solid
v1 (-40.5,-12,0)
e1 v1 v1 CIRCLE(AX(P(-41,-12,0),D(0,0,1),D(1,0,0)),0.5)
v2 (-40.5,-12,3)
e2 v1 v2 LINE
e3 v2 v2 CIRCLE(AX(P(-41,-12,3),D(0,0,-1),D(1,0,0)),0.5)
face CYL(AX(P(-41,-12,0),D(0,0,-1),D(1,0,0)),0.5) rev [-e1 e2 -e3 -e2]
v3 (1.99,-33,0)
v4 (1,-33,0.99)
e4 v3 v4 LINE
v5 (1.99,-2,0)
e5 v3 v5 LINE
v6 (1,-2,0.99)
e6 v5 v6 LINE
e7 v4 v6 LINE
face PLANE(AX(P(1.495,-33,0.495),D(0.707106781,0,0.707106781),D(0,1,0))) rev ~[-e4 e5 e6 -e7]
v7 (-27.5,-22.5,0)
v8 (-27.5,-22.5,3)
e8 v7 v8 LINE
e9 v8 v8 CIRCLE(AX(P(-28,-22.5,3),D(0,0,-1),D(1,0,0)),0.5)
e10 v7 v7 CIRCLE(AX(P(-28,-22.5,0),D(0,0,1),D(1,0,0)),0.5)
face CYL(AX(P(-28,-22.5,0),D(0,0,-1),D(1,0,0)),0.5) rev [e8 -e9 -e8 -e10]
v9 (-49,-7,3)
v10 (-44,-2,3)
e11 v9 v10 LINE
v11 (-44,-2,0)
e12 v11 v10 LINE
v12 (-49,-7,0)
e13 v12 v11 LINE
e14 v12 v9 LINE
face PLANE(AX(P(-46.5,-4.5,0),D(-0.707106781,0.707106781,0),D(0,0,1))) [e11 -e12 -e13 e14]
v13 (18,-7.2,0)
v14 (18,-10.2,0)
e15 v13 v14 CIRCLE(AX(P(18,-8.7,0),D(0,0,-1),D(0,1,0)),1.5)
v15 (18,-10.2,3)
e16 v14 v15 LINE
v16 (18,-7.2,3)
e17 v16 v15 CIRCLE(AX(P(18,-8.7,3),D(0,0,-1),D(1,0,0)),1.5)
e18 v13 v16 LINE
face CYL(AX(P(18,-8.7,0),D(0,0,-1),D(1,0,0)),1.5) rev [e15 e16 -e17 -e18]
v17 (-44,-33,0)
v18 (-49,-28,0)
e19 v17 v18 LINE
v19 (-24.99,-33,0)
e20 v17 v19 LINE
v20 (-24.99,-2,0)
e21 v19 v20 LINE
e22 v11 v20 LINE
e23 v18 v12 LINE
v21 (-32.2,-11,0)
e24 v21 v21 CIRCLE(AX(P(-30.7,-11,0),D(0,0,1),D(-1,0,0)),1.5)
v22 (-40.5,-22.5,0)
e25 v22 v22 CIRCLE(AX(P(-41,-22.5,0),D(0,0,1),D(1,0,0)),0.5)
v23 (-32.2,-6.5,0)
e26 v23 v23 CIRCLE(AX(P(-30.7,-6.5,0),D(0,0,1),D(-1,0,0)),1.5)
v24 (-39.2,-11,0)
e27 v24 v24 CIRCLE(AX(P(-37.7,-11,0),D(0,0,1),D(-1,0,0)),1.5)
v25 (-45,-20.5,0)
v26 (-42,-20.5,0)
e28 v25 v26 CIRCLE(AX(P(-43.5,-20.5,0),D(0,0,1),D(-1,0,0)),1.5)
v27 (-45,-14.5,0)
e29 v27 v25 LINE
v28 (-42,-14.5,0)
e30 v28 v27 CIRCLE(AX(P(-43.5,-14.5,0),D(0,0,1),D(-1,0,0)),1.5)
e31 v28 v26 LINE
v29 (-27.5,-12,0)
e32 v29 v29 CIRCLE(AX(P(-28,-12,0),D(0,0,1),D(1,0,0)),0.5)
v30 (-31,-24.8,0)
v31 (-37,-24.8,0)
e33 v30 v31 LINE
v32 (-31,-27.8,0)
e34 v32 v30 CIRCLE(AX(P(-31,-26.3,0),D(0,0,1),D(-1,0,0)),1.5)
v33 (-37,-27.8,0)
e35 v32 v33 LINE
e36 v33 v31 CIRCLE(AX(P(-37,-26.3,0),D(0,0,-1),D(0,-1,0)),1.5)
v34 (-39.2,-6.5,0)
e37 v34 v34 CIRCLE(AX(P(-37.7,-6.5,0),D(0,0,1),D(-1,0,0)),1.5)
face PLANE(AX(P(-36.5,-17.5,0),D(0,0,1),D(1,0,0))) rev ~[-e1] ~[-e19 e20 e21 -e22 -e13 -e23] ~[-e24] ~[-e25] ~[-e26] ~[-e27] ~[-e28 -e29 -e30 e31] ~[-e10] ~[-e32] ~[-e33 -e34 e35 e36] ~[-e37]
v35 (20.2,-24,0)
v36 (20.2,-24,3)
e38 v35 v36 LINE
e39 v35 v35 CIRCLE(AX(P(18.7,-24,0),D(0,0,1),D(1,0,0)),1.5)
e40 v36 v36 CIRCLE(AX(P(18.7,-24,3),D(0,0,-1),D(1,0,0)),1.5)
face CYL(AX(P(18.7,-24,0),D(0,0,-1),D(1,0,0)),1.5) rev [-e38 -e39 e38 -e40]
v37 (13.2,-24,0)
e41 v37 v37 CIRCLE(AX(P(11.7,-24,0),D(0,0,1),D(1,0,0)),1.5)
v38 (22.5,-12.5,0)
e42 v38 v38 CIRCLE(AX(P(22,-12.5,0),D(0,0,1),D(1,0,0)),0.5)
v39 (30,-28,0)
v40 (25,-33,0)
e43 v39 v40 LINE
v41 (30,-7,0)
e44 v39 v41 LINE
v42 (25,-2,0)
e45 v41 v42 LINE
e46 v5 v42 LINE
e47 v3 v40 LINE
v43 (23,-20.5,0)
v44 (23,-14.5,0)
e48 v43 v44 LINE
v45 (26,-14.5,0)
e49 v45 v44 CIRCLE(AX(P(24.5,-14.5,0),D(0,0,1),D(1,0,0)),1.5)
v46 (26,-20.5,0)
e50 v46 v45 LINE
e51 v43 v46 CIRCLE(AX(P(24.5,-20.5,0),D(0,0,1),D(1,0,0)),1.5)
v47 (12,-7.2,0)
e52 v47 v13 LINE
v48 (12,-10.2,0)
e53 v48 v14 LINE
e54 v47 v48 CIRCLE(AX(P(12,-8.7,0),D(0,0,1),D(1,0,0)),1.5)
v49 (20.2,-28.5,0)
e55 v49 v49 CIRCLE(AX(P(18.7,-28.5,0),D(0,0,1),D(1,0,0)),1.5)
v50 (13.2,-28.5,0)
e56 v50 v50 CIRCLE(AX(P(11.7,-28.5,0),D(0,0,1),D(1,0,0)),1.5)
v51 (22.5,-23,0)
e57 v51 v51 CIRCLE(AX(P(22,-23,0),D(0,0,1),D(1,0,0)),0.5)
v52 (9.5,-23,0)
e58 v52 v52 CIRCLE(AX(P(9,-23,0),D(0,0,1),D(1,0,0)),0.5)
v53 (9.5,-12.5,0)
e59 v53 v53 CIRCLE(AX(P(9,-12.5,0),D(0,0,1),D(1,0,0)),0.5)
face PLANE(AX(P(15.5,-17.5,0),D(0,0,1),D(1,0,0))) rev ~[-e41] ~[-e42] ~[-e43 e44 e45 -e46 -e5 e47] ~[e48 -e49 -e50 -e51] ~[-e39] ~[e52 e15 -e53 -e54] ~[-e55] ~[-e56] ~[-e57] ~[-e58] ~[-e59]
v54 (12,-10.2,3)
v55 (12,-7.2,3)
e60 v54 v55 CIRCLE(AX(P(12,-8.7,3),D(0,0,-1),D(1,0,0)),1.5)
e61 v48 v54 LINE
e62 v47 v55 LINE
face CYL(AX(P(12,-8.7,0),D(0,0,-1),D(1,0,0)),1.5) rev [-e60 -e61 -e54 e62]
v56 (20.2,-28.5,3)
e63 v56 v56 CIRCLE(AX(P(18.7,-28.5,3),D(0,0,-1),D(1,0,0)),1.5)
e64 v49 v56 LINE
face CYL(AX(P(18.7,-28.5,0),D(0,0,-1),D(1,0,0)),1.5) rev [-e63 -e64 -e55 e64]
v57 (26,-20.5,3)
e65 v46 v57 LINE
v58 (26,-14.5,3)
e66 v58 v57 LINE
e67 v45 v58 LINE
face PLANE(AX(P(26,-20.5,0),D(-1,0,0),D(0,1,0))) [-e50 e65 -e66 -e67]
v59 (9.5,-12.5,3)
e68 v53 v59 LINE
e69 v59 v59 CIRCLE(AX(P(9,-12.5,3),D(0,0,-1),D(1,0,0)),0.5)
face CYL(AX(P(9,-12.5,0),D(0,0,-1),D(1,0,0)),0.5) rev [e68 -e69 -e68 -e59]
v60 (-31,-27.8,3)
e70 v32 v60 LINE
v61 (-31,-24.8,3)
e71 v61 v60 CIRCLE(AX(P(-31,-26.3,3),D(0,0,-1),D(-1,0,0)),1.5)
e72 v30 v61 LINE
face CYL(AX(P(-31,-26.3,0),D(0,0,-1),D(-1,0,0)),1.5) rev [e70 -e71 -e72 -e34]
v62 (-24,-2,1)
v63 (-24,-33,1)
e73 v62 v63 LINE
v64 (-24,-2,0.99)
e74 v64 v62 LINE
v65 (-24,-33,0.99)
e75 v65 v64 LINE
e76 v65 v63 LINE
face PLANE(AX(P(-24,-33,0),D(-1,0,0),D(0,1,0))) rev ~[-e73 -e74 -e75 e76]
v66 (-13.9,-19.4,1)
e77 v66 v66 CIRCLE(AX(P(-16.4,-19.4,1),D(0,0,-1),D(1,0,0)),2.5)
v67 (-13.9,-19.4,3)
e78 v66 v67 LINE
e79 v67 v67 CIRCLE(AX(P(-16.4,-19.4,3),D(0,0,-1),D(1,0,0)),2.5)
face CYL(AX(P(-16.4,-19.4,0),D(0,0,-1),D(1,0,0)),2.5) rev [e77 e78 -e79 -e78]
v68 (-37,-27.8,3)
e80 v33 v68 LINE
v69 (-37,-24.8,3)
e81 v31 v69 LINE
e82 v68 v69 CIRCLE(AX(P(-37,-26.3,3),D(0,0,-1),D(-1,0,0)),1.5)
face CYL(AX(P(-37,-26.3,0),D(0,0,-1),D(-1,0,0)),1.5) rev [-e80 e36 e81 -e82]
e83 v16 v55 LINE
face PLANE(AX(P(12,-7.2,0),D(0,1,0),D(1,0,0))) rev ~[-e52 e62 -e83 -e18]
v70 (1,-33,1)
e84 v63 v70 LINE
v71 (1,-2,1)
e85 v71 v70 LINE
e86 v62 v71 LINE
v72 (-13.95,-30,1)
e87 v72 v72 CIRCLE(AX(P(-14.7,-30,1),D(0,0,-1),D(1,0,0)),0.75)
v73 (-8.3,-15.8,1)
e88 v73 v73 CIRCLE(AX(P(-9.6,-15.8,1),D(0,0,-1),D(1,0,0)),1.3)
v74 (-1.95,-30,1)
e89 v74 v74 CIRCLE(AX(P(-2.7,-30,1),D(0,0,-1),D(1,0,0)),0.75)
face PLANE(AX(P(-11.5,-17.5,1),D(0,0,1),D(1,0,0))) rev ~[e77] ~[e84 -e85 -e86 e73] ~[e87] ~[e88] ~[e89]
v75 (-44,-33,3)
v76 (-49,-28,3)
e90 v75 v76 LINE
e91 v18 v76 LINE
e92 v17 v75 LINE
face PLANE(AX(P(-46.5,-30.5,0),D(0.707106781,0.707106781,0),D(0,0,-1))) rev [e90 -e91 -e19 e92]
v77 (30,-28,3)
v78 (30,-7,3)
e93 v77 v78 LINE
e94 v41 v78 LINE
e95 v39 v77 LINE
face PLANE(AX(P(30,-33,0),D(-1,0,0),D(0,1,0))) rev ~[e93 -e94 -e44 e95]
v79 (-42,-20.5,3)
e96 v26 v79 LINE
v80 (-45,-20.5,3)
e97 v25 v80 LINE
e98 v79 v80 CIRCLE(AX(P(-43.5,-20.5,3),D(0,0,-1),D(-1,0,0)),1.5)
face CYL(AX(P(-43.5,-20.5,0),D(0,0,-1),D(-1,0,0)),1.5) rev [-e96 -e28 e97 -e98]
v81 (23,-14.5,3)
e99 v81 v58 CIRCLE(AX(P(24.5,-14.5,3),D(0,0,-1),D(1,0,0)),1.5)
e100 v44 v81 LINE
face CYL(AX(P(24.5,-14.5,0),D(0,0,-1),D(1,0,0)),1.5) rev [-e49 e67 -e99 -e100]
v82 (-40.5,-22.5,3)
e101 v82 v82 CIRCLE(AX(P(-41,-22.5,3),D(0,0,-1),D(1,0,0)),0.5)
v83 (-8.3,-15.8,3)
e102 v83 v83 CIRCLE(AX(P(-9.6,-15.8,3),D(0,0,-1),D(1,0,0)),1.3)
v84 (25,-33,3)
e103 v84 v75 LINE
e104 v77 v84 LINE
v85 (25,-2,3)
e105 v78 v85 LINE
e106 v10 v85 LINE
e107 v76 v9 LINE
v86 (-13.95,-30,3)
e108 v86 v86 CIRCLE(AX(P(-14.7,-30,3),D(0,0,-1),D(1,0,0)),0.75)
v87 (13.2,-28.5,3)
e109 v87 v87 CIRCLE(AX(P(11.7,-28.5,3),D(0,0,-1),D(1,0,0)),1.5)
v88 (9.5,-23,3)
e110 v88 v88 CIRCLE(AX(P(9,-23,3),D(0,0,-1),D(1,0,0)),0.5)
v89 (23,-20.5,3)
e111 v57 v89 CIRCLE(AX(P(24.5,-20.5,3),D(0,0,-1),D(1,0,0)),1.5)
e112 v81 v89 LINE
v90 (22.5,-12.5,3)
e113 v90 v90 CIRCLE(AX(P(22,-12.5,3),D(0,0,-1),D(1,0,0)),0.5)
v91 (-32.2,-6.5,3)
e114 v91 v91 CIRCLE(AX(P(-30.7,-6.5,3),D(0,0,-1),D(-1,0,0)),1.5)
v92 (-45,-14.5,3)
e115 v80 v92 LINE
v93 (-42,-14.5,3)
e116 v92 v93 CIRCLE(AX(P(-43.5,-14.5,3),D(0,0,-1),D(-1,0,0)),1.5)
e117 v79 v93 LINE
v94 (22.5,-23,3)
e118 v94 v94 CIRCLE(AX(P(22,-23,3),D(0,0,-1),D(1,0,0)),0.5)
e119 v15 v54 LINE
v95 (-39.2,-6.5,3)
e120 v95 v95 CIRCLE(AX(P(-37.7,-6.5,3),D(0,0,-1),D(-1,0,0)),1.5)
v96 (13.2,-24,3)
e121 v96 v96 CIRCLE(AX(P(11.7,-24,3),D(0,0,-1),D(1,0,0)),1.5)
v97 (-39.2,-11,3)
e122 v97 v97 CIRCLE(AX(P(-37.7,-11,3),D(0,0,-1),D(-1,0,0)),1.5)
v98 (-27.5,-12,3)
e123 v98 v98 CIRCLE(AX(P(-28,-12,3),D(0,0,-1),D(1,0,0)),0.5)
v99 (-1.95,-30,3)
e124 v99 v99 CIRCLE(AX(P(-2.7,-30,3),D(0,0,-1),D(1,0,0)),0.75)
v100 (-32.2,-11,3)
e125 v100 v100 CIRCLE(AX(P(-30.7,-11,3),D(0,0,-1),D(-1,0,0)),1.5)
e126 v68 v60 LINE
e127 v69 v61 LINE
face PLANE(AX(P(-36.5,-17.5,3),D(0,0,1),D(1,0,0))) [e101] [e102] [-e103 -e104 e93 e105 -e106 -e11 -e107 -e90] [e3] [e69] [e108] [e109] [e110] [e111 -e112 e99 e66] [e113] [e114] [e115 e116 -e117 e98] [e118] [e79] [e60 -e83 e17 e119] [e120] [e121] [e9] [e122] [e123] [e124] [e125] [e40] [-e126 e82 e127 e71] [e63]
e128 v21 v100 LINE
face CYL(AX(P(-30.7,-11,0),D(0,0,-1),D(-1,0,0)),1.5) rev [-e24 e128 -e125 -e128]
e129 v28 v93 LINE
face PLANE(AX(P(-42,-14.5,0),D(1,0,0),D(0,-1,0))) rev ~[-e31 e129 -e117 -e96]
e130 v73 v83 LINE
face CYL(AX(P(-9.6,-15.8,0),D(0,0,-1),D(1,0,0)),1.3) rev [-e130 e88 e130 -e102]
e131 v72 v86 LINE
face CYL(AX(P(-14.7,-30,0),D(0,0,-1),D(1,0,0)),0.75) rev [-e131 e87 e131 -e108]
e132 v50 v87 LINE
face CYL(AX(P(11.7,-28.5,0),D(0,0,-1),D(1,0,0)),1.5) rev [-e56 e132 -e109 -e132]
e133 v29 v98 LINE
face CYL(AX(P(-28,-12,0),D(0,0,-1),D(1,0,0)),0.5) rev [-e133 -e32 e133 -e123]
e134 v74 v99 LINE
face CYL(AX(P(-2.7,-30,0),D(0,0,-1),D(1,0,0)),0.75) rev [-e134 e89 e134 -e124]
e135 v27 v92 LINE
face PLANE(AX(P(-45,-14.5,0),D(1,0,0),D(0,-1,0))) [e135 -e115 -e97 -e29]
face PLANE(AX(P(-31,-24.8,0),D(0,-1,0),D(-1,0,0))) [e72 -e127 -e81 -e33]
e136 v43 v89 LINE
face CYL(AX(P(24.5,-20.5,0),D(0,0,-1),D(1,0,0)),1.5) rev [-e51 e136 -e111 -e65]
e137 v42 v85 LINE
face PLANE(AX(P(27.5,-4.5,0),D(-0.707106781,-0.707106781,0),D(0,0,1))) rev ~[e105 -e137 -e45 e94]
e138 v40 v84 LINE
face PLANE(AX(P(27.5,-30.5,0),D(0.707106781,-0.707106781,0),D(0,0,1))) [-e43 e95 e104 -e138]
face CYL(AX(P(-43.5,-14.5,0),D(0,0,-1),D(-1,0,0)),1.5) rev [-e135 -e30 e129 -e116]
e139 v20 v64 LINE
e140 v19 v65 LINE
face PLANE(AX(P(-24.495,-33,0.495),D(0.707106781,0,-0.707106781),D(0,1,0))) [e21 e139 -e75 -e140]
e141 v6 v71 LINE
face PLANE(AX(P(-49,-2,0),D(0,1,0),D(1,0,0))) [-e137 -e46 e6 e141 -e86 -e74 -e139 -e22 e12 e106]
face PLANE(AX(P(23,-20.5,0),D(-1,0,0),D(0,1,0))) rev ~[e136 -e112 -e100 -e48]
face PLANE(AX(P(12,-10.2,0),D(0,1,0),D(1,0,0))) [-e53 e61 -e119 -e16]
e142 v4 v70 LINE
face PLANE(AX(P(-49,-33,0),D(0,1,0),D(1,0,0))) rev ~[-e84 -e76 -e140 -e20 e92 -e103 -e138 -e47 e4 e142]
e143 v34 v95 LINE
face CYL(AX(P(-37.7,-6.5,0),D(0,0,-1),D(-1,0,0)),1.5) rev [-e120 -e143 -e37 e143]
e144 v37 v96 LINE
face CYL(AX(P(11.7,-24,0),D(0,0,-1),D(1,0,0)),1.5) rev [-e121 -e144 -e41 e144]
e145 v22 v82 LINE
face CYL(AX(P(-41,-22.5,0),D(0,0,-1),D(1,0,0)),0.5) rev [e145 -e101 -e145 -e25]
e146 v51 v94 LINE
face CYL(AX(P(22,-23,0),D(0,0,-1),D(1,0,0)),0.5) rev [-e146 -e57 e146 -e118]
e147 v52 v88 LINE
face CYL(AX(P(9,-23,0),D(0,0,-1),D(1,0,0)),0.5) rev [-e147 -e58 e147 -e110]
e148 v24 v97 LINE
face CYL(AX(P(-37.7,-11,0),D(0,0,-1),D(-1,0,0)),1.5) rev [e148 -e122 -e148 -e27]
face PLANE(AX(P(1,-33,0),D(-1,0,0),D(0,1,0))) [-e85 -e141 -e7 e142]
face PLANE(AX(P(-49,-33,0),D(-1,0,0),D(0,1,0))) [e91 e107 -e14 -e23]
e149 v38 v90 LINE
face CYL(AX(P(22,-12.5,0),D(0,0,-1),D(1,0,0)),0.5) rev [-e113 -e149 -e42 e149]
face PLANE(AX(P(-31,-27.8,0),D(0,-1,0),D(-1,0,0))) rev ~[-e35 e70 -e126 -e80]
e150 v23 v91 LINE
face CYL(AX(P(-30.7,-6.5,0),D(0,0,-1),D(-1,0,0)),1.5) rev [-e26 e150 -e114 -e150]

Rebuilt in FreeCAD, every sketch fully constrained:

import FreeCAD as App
import Part
import Sketcher
Q = App.Units.Quantity


def edges_at(feature, points):
    """Names of the edges that pass closest to the given points."""
    edges = feature.Shape.Edges
    near = lambda p: min(range(len(edges)), key=lambda i: edges[i].distToShape(Part.Vertex(*p))[0])
    return sorted({f"Edge{near(p) + 1}" for p in points})


def add_polygon(sketch, points):
    """Adds a closed chain of lines whose ends are joined by coincident constraints."""
    first, n = sketch.GeometryCount, len(points)
    for a, b in zip(points, points[1:] + points[:1]):
        sketch.addGeometry(Part.LineSegment(App.Vector(*a, 0), App.Vector(*b, 0)), False)
    for i in range(n):
        sketch.addConstraint(Sketcher.Constraint("Coincident", first + i, 2, first + (i + 1) % n, 1))

doc = App.newDocument("Part")
params = doc.addObject("Spreadsheet::Sheet", "Params")
for row, (alias, value) in enumerate([
    ("sketch1_diameter", "1 mm"),
    ("pad1_length", "10 mm"),
    ("sketch2_diameter", "1 mm"),
    ("pad2_length", "10 mm"),
    ("sketch3_diameter", "1 mm"),
    ("pad3_length", "10 mm"),
    ("sketch4_diameter", "1 mm"),
    ("pad4_length", "10 mm"),
    ("sketch5_diameter", "3 mm"),
    ("pad5_length", "10 mm"),
    ("sketch6_diameter", "3 mm"),
    ("pad6_length", "10 mm"),
    ("sketch7_diameter", "3 mm"),
    ("pad7_length", "10 mm"),
    ("sketch8_diameter", "3 mm"),
    ("pad8_length", "10 mm"),
    ("sketch9_width", "3 mm"),
    ("sketch9_height", "6 mm"),
    ("pad9_length", "10 mm"),
    ("sketch10_diameter", "3 mm"),
    ("pad10_length", "10 mm"),
    ("sketch11_diameter", "3 mm"),
    ("pad11_length", "10 mm"),
    ("sketch12_diameter", "3 mm"),
    ("pad12_length", "10 mm"),
    ("sketch13_width", "6 mm"),
    ("sketch13_height", "3 mm"),
    ("pad13_length", "10 mm"),
    ("sketch14_diameter", "3 mm"),
    ("pad14_length", "10 mm"),
    ("sketch15_width", "29 mm"),
    ("sketch15_height", "31 mm"),
    ("pad15_length", "3 mm"),
    ("sketch16_diameter", "1 mm"),
    ("pad16_length", "10 mm"),
    ("sketch17_diameter", "1 mm"),
    ("pad17_length", "10 mm"),
    ("sketch18_diameter", "1 mm"),
    ("pad18_length", "10 mm"),
    ("sketch19_diameter", "1 mm"),
    ("pad19_length", "10 mm"),
    ("sketch20_diameter", "3 mm"),
    ("pad20_length", "10 mm"),
    ("sketch21_diameter", "3 mm"),
    ("pad21_length", "10 mm"),
    ("sketch22_diameter", "3 mm"),
    ("pad22_length", "10 mm"),
    ("sketch23_diameter", "3 mm"),
    ("pad23_length", "10 mm"),
    ("sketch24_width", "3 mm"),
    ("sketch24_height", "6 mm"),
    ("pad24_length", "10 mm"),
    ("sketch25_diameter", "3 mm"),
    ("pad25_length", "10 mm"),
    ("sketch26_diameter", "3 mm"),
    ("pad26_length", "10 mm"),
    ("sketch27_diameter", "3 mm"),
    ("pad27_length", "10 mm"),
    ("sketch28_width", "6 mm"),
    ("sketch28_height", "3 mm"),
    ("pad28_length", "10 mm"),
    ("sketch29_diameter", "3 mm"),
    ("pad29_length", "10 mm"),
    ("sketch30_width", "25 mm"),
    ("sketch30_height", "31 mm"),
    ("pad30_length", "3 mm"),
    ("sketch31_diameter", "1.5 mm"),
    ("pad31_length", "10 mm"),
    ("sketch32_diameter", "1.5 mm"),
    ("pad32_length", "10 mm"),
    ("sketch33_diameter", "2.6 mm"),
    ("pad33_length", "10 mm"),
    ("sketch34_diameter", "5 mm"),
    ("pad34_length", "10 mm"),
    ("sketch35_width", "27 mm"),
    ("sketch35_height", "31 mm"),
    ("pad35_length", "2 mm"),
    ("chamfer_size", "5 mm"),
    ("chamfer2_size", "5 mm"),
    ("chamfer3_size", "0.99 mm"),
], start=1):
    params.set(f"A{row}", alias)
    params.set(f"B{row}", "=" + value)
    params.setAlias(f"B{row}", alias)

body = doc.addObject("PartDesign::Body", "Body")

# Sketch on XY plane
sketch1 = body.newObject("Sketcher::SketchObject", "Sketch")
sketch1.AttachmentSupport = (doc.getObject("XY_Plane"), [""])
sketch1.MapMode = "FlatFace"
sketch1.addGeometry(Part.Circle(App.Vector(-41, -22.5, 0), App.Vector(0, 0, 1), 0.5), False)
sketch1.addConstraint([
    Sketcher.Constraint("Diameter", 0, Q("1 mm")),
    Sketcher.Constraint("DistanceX", 0, 3, -1, 1, Q("41 mm")),
    Sketcher.Constraint("DistanceY", 0, 3, -1, 1, Q("22.5 mm")),
])
sketch1.setExpression("Constraints[0]", "Params.sketch1_diameter")
pad1 = body.newObject("PartDesign::Pad", "Pad")
pad1.Profile = sketch1
pad1.setExpression("Length", "Params.pad1_length")
body2 = doc.addObject("PartDesign::Body", "Body001")

# Sketch on XY plane
sketch2 = body2.newObject("Sketcher::SketchObject", "Sketch001")
sketch2.AttachmentSupport = (doc.getObject("XY_Plane001"), [""])
sketch2.MapMode = "FlatFace"
sketch2.addGeometry(Part.Circle(App.Vector(-28, -12, 0), App.Vector(0, 0, 1), 0.5), False)
sketch2.addConstraint([
    Sketcher.Constraint("Diameter", 0, Q("1 mm")),
    Sketcher.Constraint("DistanceX", 0, 3, -1, 1, Q("28 mm")),
    Sketcher.Constraint("DistanceY", 0, 3, -1, 1, Q("12 mm")),
])
sketch2.setExpression("Constraints[0]", "Params.sketch2_diameter")
pad2 = body2.newObject("PartDesign::Pad", "Pad001")
pad2.Profile = sketch2
pad2.setExpression("Length", "Params.pad2_length")
body3 = doc.addObject("PartDesign::Body", "Body002")

# Sketch on XY plane
sketch3 = body3.newObject("Sketcher::SketchObject", "Sketch002")
sketch3.AttachmentSupport = (doc.getObject("XY_Plane002"), [""])
sketch3.MapMode = "FlatFace"
sketch3.addGeometry(Part.Circle(App.Vector(-28, -22.5, 0), App.Vector(0, 0, 1), 0.5), False)
sketch3.addConstraint([
    Sketcher.Constraint("Diameter", 0, Q("1 mm")),
    Sketcher.Constraint("DistanceX", 0, 3, -1, 1, Q("28 mm")),
    Sketcher.Constraint("DistanceY", 0, 3, -1, 1, Q("22.5 mm")),
])
sketch3.setExpression("Constraints[0]", "Params.sketch3_diameter")
pad3 = body3.newObject("PartDesign::Pad", "Pad002")
pad3.Profile = sketch3
pad3.setExpression("Length", "Params.pad3_length")
body4 = doc.addObject("PartDesign::Body", "Body003")
body4.AllowCompound = True

# Sketch on XY plane
sketch4 = body4.newObject("Sketcher::SketchObject", "Sketch003")
sketch4.AttachmentSupport = (doc.getObject("XY_Plane003"), [""])
sketch4.MapMode = "FlatFace"
sketch4.addGeometry(Part.Circle(App.Vector(-41, -12, 0), App.Vector(0, 0, 1), 0.5), False)
sketch4.addConstraint([
    Sketcher.Constraint("Diameter", 0, Q("1 mm")),
    Sketcher.Constraint("DistanceX", 0, 3, -1, 1, Q("41 mm")),
    Sketcher.Constraint("DistanceY", 0, 3, -1, 1, Q("12 mm")),
])
sketch4.setExpression("Constraints[0]", "Params.sketch4_diameter")
pad4 = body4.newObject("PartDesign::Pad", "Pad003")
pad4.Profile = sketch4
pad4.setExpression("Length", "Params.pad4_length")
doc.recompute()

boolean = body4.newObject("PartDesign::Boolean", "Boolean")
boolean.Type = "Fuse"
boolean.addObjects([body])
doc.recompute()

boolean2 = body4.newObject("PartDesign::Boolean", "Boolean001")
boolean2.Type = "Fuse"
boolean2.addObjects([body2])
doc.recompute()

boolean3 = body4.newObject("PartDesign::Boolean", "Boolean002")
boolean3.Type = "Fuse"
boolean3.addObjects([body3])
body5 = doc.addObject("PartDesign::Body", "Body004")
body5.AllowCompound = True
doc.recompute()

body4.Placement = App.Placement(App.Vector(50, -0.5, 0), App.Rotation(App.Vector(0, 0, 1), 0))
boolean4 = body5.newObject("PartDesign::Boolean", "Boolean003")
boolean4.Type = "Fuse"
boolean4.addObjects([body4])
body6 = doc.addObject("PartDesign::Body", "Body005")

# Sketch on XY plane
sketch5 = body6.newObject("Sketcher::SketchObject", "Sketch004")
sketch5.AttachmentSupport = (doc.getObject("XY_Plane005"), [""])
sketch5.MapMode = "FlatFace"
sketch5.addGeometry(Part.Circle(App.Vector(18.7, -24, 0), App.Vector(0, 0, 1), 1.5), False)
sketch5.addConstraint([
    Sketcher.Constraint("Diameter", 0, Q("3 mm")),
    Sketcher.Constraint("DistanceY", 0, 3, -1, 1, Q("24 mm")),
    Sketcher.Constraint("DistanceX", -1, 1, 0, 3, Q("18.7 mm")),
])
sketch5.setExpression("Constraints[0]", "Params.sketch5_diameter")
pad5 = body6.newObject("PartDesign::Pad", "Pad004")
pad5.Profile = sketch5
pad5.setExpression("Length", "Params.pad5_length")
body7 = doc.addObject("PartDesign::Body", "Body006")

# Sketch on XY plane
sketch6 = body7.newObject("Sketcher::SketchObject", "Sketch005")
sketch6.AttachmentSupport = (doc.getObject("XY_Plane006"), [""])
sketch6.MapMode = "FlatFace"
sketch6.addGeometry(Part.Circle(App.Vector(18.7, -28.5, 0), App.Vector(0, 0, 1), 1.5), False)
sketch6.addConstraint([
    Sketcher.Constraint("Diameter", 0, Q("3 mm")),
    Sketcher.Constraint("DistanceX", -1, 1, 0, 3, Q("18.7 mm")),
    Sketcher.Constraint("DistanceY", 0, 3, -1, 1, Q("28.5 mm")),
])
sketch6.setExpression("Constraints[0]", "Params.sketch6_diameter")
pad6 = body7.newObject("PartDesign::Pad", "Pad005")
pad6.Profile = sketch6
pad6.setExpression("Length", "Params.pad6_length")
body8 = doc.addObject("PartDesign::Body", "Body007")

# Sketch on XY plane
sketch7 = body8.newObject("Sketcher::SketchObject", "Sketch006")
sketch7.AttachmentSupport = (doc.getObject("XY_Plane007"), [""])
sketch7.MapMode = "FlatFace"
sketch7.addGeometry(Part.Circle(App.Vector(11.7, -28.5, 0), App.Vector(0, 0, 1), 1.5), False)
sketch7.addConstraint([
    Sketcher.Constraint("Diameter", 0, Q("3 mm")),
    Sketcher.Constraint("DistanceX", -1, 1, 0, 3, Q("11.7 mm")),
    Sketcher.Constraint("DistanceY", 0, 3, -1, 1, Q("28.5 mm")),
])
sketch7.setExpression("Constraints[0]", "Params.sketch7_diameter")
pad7 = body8.newObject("PartDesign::Pad", "Pad006")
pad7.Profile = sketch7
pad7.setExpression("Length", "Params.pad7_length")
body9 = doc.addObject("PartDesign::Body", "Body008")
body9.AllowCompound = True

# Sketch on XY plane
sketch8 = body9.newObject("Sketcher::SketchObject", "Sketch007")
sketch8.AttachmentSupport = (doc.getObject("XY_Plane008"), [""])
sketch8.MapMode = "FlatFace"
sketch8.addGeometry(Part.Circle(App.Vector(11.7, -24, 0), App.Vector(0, 0, 1), 1.5), False)
sketch8.addConstraint([
    Sketcher.Constraint("Diameter", 0, Q("3 mm")),
    Sketcher.Constraint("DistanceY", 0, 3, -1, 1, Q("24 mm")),
    Sketcher.Constraint("DistanceX", -1, 1, 0, 3, Q("11.7 mm")),
])
sketch8.setExpression("Constraints[0]", "Params.sketch8_diameter")
pad8 = body9.newObject("PartDesign::Pad", "Pad007")
pad8.Profile = sketch8
pad8.setExpression("Length", "Params.pad8_length")
doc.recompute()

boolean5 = body9.newObject("PartDesign::Boolean", "Boolean004")
boolean5.Type = "Fuse"
boolean5.addObjects([body6])
doc.recompute()

boolean6 = body9.newObject("PartDesign::Boolean", "Boolean005")
boolean6.Type = "Fuse"
boolean6.addObjects([body7])
doc.recompute()

boolean7 = body9.newObject("PartDesign::Boolean", "Boolean006")
boolean7.Type = "Fuse"
boolean7.addObjects([body8])
body10 = doc.addObject("PartDesign::Body", "Body009")

# Sketch on XY plane
sketch9 = body10.newObject("Sketcher::SketchObject", "Sketch008")
sketch9.AttachmentSupport = (doc.getObject("XY_Plane009"), [""])
sketch9.MapMode = "FlatFace"
add_polygon(sketch9, [(23, -14.5), (23, -20.5), (26, -20.5), (26, -14.5)])  # lines 0-3
sketch9.addConstraint([
    Sketcher.Constraint("Vertical", 0),
    Sketcher.Constraint("Horizontal", 1),
    Sketcher.Constraint("Vertical", 2),
    Sketcher.Constraint("Horizontal", 3),
    Sketcher.Constraint("DistanceX", 1, 1, 1, 2, Q("3 mm")),
    Sketcher.Constraint("DistanceY", 0, 2, 0, 1, Q("6 mm")),
    Sketcher.Constraint("DistanceX", -1, 1, 0, 2, Q("23 mm")),
    Sketcher.Constraint("DistanceY", 0, 2, -1, 1, Q("20.5 mm")),
])
sketch9.setExpression("Constraints[8]", "Params.sketch9_width")
sketch9.setExpression("Constraints[9]", "Params.sketch9_height")
pad9 = body10.newObject("PartDesign::Pad", "Pad008")
pad9.Profile = sketch9
pad9.setExpression("Length", "Params.pad9_length")
body11 = doc.addObject("PartDesign::Body", "Body010")

# Sketch on XY plane
sketch10 = body11.newObject("Sketcher::SketchObject", "Sketch009")
sketch10.AttachmentSupport = (doc.getObject("XY_Plane010"), [""])
sketch10.MapMode = "FlatFace"
sketch10.addGeometry(Part.Circle(App.Vector(24.5, -14.5, 0), App.Vector(0, 0, 1), 1.5), False)
sketch10.addConstraint([
    Sketcher.Constraint("Diameter", 0, Q("3 mm")),
    Sketcher.Constraint("DistanceX", -1, 1, 0, 3, Q("24.5 mm")),
    Sketcher.Constraint("DistanceY", 0, 3, -1, 1, Q("14.5 mm")),
])
sketch10.setExpression("Constraints[0]", "Params.sketch10_diameter")
pad10 = body11.newObject("PartDesign::Pad", "Pad009")
pad10.Profile = sketch10
pad10.setExpression("Length", "Params.pad10_length")
body12 = doc.addObject("PartDesign::Body", "Body011")

# Sketch on XY plane
sketch11 = body12.newObject("Sketcher::SketchObject", "Sketch010")
sketch11.AttachmentSupport = (doc.getObject("XY_Plane011"), [""])
sketch11.MapMode = "FlatFace"
sketch11.addGeometry(Part.Circle(App.Vector(24.5, -20.5, 0), App.Vector(0, 0, 1), 1.5), False)
sketch11.addConstraint([
    Sketcher.Constraint("Diameter", 0, Q("3 mm")),
    Sketcher.Constraint("DistanceX", -1, 1, 0, 3, Q("24.5 mm")),
    Sketcher.Constraint("DistanceY", 0, 3, -1, 1, Q("20.5 mm")),
])
sketch11.setExpression("Constraints[0]", "Params.sketch11_diameter")
pad11 = body12.newObject("PartDesign::Pad", "Pad010")
pad11.Profile = sketch11
pad11.setExpression("Length", "Params.pad11_length")
doc.recompute()

boolean8 = body12.newObject("PartDesign::Boolean", "Boolean007")
boolean8.Type = "Fuse"
boolean8.addObjects([body10])
doc.recompute()

boolean9 = body12.newObject("PartDesign::Boolean", "Boolean008")
boolean9.Type = "Fuse"
boolean9.addObjects([body11])
body13 = doc.addObject("PartDesign::Body", "Body012")

# Sketch on XY plane
sketch12 = body13.newObject("Sketcher::SketchObject", "Sketch011")
sketch12.AttachmentSupport = (doc.getObject("XY_Plane012"), [""])
sketch12.MapMode = "FlatFace"
sketch12.addGeometry(Part.Circle(App.Vector(18, -8.7, 0), App.Vector(0, 0, 1), 1.5), False)
sketch12.addConstraint([
    Sketcher.Constraint("Diameter", 0, Q("3 mm")),
    Sketcher.Constraint("DistanceX", -1, 1, 0, 3, Q("18 mm")),
    Sketcher.Constraint("DistanceY", 0, 3, -1, 1, Q("8.7 mm")),
])
sketch12.setExpression("Constraints[0]", "Params.sketch12_diameter")
pad12 = body13.newObject("PartDesign::Pad", "Pad011")
pad12.Profile = sketch12
pad12.setExpression("Length", "Params.pad12_length")
body14 = doc.addObject("PartDesign::Body", "Body013")

# Sketch on XY plane
sketch13 = body14.newObject("Sketcher::SketchObject", "Sketch012")
sketch13.AttachmentSupport = (doc.getObject("XY_Plane013"), [""])
sketch13.MapMode = "FlatFace"
add_polygon(sketch13, [(12, -7.2), (12, -10.2), (18, -10.2), (18, -7.2)])  # lines 0-3
sketch13.addConstraint([
    Sketcher.Constraint("Vertical", 0),
    Sketcher.Constraint("Horizontal", 1),
    Sketcher.Constraint("Vertical", 2),
    Sketcher.Constraint("Horizontal", 3),
    Sketcher.Constraint("DistanceX", 1, 1, 1, 2, Q("6 mm")),
    Sketcher.Constraint("DistanceY", 0, 2, 0, 1, Q("3 mm")),
    Sketcher.Constraint("DistanceX", -1, 1, 0, 2, Q("12 mm")),
    Sketcher.Constraint("DistanceY", 0, 2, -1, 1, Q("10.2 mm")),
])
sketch13.setExpression("Constraints[8]", "Params.sketch13_width")
sketch13.setExpression("Constraints[9]", "Params.sketch13_height")
pad13 = body14.newObject("PartDesign::Pad", "Pad012")
pad13.Profile = sketch13
pad13.setExpression("Length", "Params.pad13_length")
body15 = doc.addObject("PartDesign::Body", "Body014")
body15.AllowCompound = True

# Sketch on XY plane
sketch14 = body15.newObject("Sketcher::SketchObject", "Sketch013")
sketch14.AttachmentSupport = (doc.getObject("XY_Plane014"), [""])
sketch14.MapMode = "FlatFace"
sketch14.addGeometry(Part.Circle(App.Vector(12, -8.7, 0), App.Vector(0, 0, 1), 1.5), False)
sketch14.addConstraint([
    Sketcher.Constraint("Diameter", 0, Q("3 mm")),
    Sketcher.Constraint("DistanceX", -1, 1, 0, 3, Q("12 mm")),
    Sketcher.Constraint("DistanceY", 0, 3, -1, 1, Q("8.7 mm")),
])
sketch14.setExpression("Constraints[0]", "Params.sketch14_diameter")
pad14 = body15.newObject("PartDesign::Pad", "Pad013")
pad14.Profile = sketch14
pad14.setExpression("Length", "Params.pad14_length")
doc.recompute()

boolean10 = body15.newObject("PartDesign::Boolean", "Boolean009")
boolean10.Type = "Fuse"
boolean10.addObjects([body13])
doc.recompute()

boolean11 = body15.newObject("PartDesign::Boolean", "Boolean010")
boolean11.Type = "Fuse"
boolean11.addObjects([body14])
doc.recompute()

boolean12 = body15.newObject("PartDesign::Boolean", "Boolean011")
boolean12.Type = "Fuse"
boolean12.addObjects([body9])
doc.recompute()

boolean13 = body15.newObject("PartDesign::Boolean", "Boolean012")
boolean13.Type = "Fuse"
boolean13.addObjects([body12])
doc.recompute()

boolean14 = body15.newObject("PartDesign::Boolean", "Boolean013")
boolean14.Type = "Fuse"
boolean14.addObjects([body5])
body16 = doc.addObject("PartDesign::Body", "Body015")

# Sketch on XY plane
sketch15 = body16.newObject("Sketcher::SketchObject", "Sketch014")
sketch15.AttachmentSupport = (doc.getObject("XY_Plane015"), [""])
sketch15.MapMode = "FlatFace"
add_polygon(sketch15, [(1, -2), (1, -33), (30, -33), (30, -2)])  # lines 0-3
sketch15.addConstraint([
    Sketcher.Constraint("Vertical", 0),
    Sketcher.Constraint("Horizontal", 1),
    Sketcher.Constraint("Vertical", 2),
    Sketcher.Constraint("Horizontal", 3),
    Sketcher.Constraint("DistanceX", 1, 1, 1, 2, Q("29 mm")),
    Sketcher.Constraint("DistanceY", 0, 2, 0, 1, Q("31 mm")),
    Sketcher.Constraint("DistanceX", -1, 1, 0, 2, Q("1 mm")),
    Sketcher.Constraint("DistanceY", 0, 2, -1, 1, Q("33 mm")),
])
sketch15.setExpression("Constraints[8]", "Params.sketch15_width")
sketch15.setExpression("Constraints[9]", "Params.sketch15_height")
pad15 = body16.newObject("PartDesign::Pad", "Pad014")
pad15.Profile = sketch15
pad15.setExpression("Length", "Params.pad15_length")
doc.recompute()

boolean15 = body16.newObject("PartDesign::Boolean", "Boolean014")
boolean15.Type = "Cut"
boolean15.addObjects([body15])
body17 = doc.addObject("PartDesign::Body", "Body016")

# Sketch on XY plane
sketch16 = body17.newObject("Sketcher::SketchObject", "Sketch015")
sketch16.AttachmentSupport = (doc.getObject("XY_Plane016"), [""])
sketch16.MapMode = "FlatFace"
sketch16.addGeometry(Part.Circle(App.Vector(-41, -22.5, 0), App.Vector(0, 0, 1), 0.5), False)
sketch16.addConstraint([
    Sketcher.Constraint("Diameter", 0, Q("1 mm")),
    Sketcher.Constraint("DistanceX", 0, 3, -1, 1, Q("41 mm")),
    Sketcher.Constraint("DistanceY", 0, 3, -1, 1, Q("22.5 mm")),
])
sketch16.setExpression("Constraints[0]", "Params.sketch16_diameter")
pad16 = body17.newObject("PartDesign::Pad", "Pad015")
pad16.Profile = sketch16
pad16.setExpression("Length", "Params.pad16_length")
body18 = doc.addObject("PartDesign::Body", "Body017")

# Sketch on XY plane
sketch17 = body18.newObject("Sketcher::SketchObject", "Sketch016")
sketch17.AttachmentSupport = (doc.getObject("XY_Plane017"), [""])
sketch17.MapMode = "FlatFace"
sketch17.addGeometry(Part.Circle(App.Vector(-28, -12, 0), App.Vector(0, 0, 1), 0.5), False)
sketch17.addConstraint([
    Sketcher.Constraint("Diameter", 0, Q("1 mm")),
    Sketcher.Constraint("DistanceX", 0, 3, -1, 1, Q("28 mm")),
    Sketcher.Constraint("DistanceY", 0, 3, -1, 1, Q("12 mm")),
])
sketch17.setExpression("Constraints[0]", "Params.sketch17_diameter")
pad17 = body18.newObject("PartDesign::Pad", "Pad016")
pad17.Profile = sketch17
pad17.setExpression("Length", "Params.pad17_length")
body19 = doc.addObject("PartDesign::Body", "Body018")

# Sketch on XY plane
sketch18 = body19.newObject("Sketcher::SketchObject", "Sketch017")
sketch18.AttachmentSupport = (doc.getObject("XY_Plane018"), [""])
sketch18.MapMode = "FlatFace"
sketch18.addGeometry(Part.Circle(App.Vector(-28, -22.5, 0), App.Vector(0, 0, 1), 0.5), False)
sketch18.addConstraint([
    Sketcher.Constraint("Diameter", 0, Q("1 mm")),
    Sketcher.Constraint("DistanceX", 0, 3, -1, 1, Q("28 mm")),
    Sketcher.Constraint("DistanceY", 0, 3, -1, 1, Q("22.5 mm")),
])
sketch18.setExpression("Constraints[0]", "Params.sketch18_diameter")
pad18 = body19.newObject("PartDesign::Pad", "Pad017")
pad18.Profile = sketch18
pad18.setExpression("Length", "Params.pad18_length")
body20 = doc.addObject("PartDesign::Body", "Body019")
body20.AllowCompound = True

# Sketch on XY plane
sketch19 = body20.newObject("Sketcher::SketchObject", "Sketch018")
sketch19.AttachmentSupport = (doc.getObject("XY_Plane019"), [""])
sketch19.MapMode = "FlatFace"
sketch19.addGeometry(Part.Circle(App.Vector(-41, -12, 0), App.Vector(0, 0, 1), 0.5), False)
sketch19.addConstraint([
    Sketcher.Constraint("Diameter", 0, Q("1 mm")),
    Sketcher.Constraint("DistanceX", 0, 3, -1, 1, Q("41 mm")),
    Sketcher.Constraint("DistanceY", 0, 3, -1, 1, Q("12 mm")),
])
sketch19.setExpression("Constraints[0]", "Params.sketch19_diameter")
pad19 = body20.newObject("PartDesign::Pad", "Pad018")
pad19.Profile = sketch19
pad19.setExpression("Length", "Params.pad19_length")
doc.recompute()

boolean16 = body20.newObject("PartDesign::Boolean", "Boolean015")
boolean16.Type = "Fuse"
boolean16.addObjects([body17])
doc.recompute()

boolean17 = body20.newObject("PartDesign::Boolean", "Boolean016")
boolean17.Type = "Fuse"
boolean17.addObjects([body18])
doc.recompute()

boolean18 = body20.newObject("PartDesign::Boolean", "Boolean017")
boolean18.Type = "Fuse"
boolean18.addObjects([body19])
body21 = doc.addObject("PartDesign::Body", "Body020")

# Sketch on XY plane
sketch20 = body21.newObject("Sketcher::SketchObject", "Sketch019")
sketch20.AttachmentSupport = (doc.getObject("XY_Plane020"), [""])
sketch20.MapMode = "FlatFace"
sketch20.addGeometry(Part.Circle(App.Vector(18.7, -24, 0), App.Vector(0, 0, 1), 1.5), False)
sketch20.addConstraint([
    Sketcher.Constraint("Diameter", 0, Q("3 mm")),
    Sketcher.Constraint("DistanceY", 0, 3, -1, 1, Q("24 mm")),
    Sketcher.Constraint("DistanceX", -1, 1, 0, 3, Q("18.7 mm")),
])
sketch20.setExpression("Constraints[0]", "Params.sketch20_diameter")
pad20 = body21.newObject("PartDesign::Pad", "Pad019")
pad20.Profile = sketch20
pad20.setExpression("Length", "Params.pad20_length")
body22 = doc.addObject("PartDesign::Body", "Body021")

# Sketch on XY plane
sketch21 = body22.newObject("Sketcher::SketchObject", "Sketch020")
sketch21.AttachmentSupport = (doc.getObject("XY_Plane021"), [""])
sketch21.MapMode = "FlatFace"
sketch21.addGeometry(Part.Circle(App.Vector(18.7, -28.5, 0), App.Vector(0, 0, 1), 1.5), False)
sketch21.addConstraint([
    Sketcher.Constraint("Diameter", 0, Q("3 mm")),
    Sketcher.Constraint("DistanceX", -1, 1, 0, 3, Q("18.7 mm")),
    Sketcher.Constraint("DistanceY", 0, 3, -1, 1, Q("28.5 mm")),
])
sketch21.setExpression("Constraints[0]", "Params.sketch21_diameter")
pad21 = body22.newObject("PartDesign::Pad", "Pad020")
pad21.Profile = sketch21
pad21.setExpression("Length", "Params.pad21_length")
body23 = doc.addObject("PartDesign::Body", "Body022")

# Sketch on XY plane
sketch22 = body23.newObject("Sketcher::SketchObject", "Sketch021")
sketch22.AttachmentSupport = (doc.getObject("XY_Plane022"), [""])
sketch22.MapMode = "FlatFace"
sketch22.addGeometry(Part.Circle(App.Vector(11.7, -28.5, 0), App.Vector(0, 0, 1), 1.5), False)
sketch22.addConstraint([
    Sketcher.Constraint("Diameter", 0, Q("3 mm")),
    Sketcher.Constraint("DistanceX", -1, 1, 0, 3, Q("11.7 mm")),
    Sketcher.Constraint("DistanceY", 0, 3, -1, 1, Q("28.5 mm")),
])
sketch22.setExpression("Constraints[0]", "Params.sketch22_diameter")
pad22 = body23.newObject("PartDesign::Pad", "Pad021")
pad22.Profile = sketch22
pad22.setExpression("Length", "Params.pad22_length")
body24 = doc.addObject("PartDesign::Body", "Body023")
body24.AllowCompound = True

# Sketch on XY plane
sketch23 = body24.newObject("Sketcher::SketchObject", "Sketch022")
sketch23.AttachmentSupport = (doc.getObject("XY_Plane023"), [""])
sketch23.MapMode = "FlatFace"
sketch23.addGeometry(Part.Circle(App.Vector(11.7, -24, 0), App.Vector(0, 0, 1), 1.5), False)
sketch23.addConstraint([
    Sketcher.Constraint("Diameter", 0, Q("3 mm")),
    Sketcher.Constraint("DistanceY", 0, 3, -1, 1, Q("24 mm")),
    Sketcher.Constraint("DistanceX", -1, 1, 0, 3, Q("11.7 mm")),
])
sketch23.setExpression("Constraints[0]", "Params.sketch23_diameter")
pad23 = body24.newObject("PartDesign::Pad", "Pad022")
pad23.Profile = sketch23
pad23.setExpression("Length", "Params.pad23_length")
doc.recompute()

boolean19 = body24.newObject("PartDesign::Boolean", "Boolean018")
boolean19.Type = "Fuse"
boolean19.addObjects([body21])
doc.recompute()

boolean20 = body24.newObject("PartDesign::Boolean", "Boolean019")
boolean20.Type = "Fuse"
boolean20.addObjects([body22])
doc.recompute()

boolean21 = body24.newObject("PartDesign::Boolean", "Boolean020")
boolean21.Type = "Fuse"
boolean21.addObjects([body23])
body25 = doc.addObject("PartDesign::Body", "Body024")

# Sketch on XY plane
sketch24 = body25.newObject("Sketcher::SketchObject", "Sketch023")
sketch24.AttachmentSupport = (doc.getObject("XY_Plane024"), [""])
sketch24.MapMode = "FlatFace"
add_polygon(sketch24, [(23, -14.5), (23, -20.5), (26, -20.5), (26, -14.5)])  # lines 0-3
sketch24.addConstraint([
    Sketcher.Constraint("Vertical", 0),
    Sketcher.Constraint("Horizontal", 1),
    Sketcher.Constraint("Vertical", 2),
    Sketcher.Constraint("Horizontal", 3),
    Sketcher.Constraint("DistanceX", 1, 1, 1, 2, Q("3 mm")),
    Sketcher.Constraint("DistanceY", 0, 2, 0, 1, Q("6 mm")),
    Sketcher.Constraint("DistanceX", -1, 1, 0, 2, Q("23 mm")),
    Sketcher.Constraint("DistanceY", 0, 2, -1, 1, Q("20.5 mm")),
])
sketch24.setExpression("Constraints[8]", "Params.sketch24_width")
sketch24.setExpression("Constraints[9]", "Params.sketch24_height")
pad24 = body25.newObject("PartDesign::Pad", "Pad023")
pad24.Profile = sketch24
pad24.setExpression("Length", "Params.pad24_length")
body26 = doc.addObject("PartDesign::Body", "Body025")

# Sketch on XY plane
sketch25 = body26.newObject("Sketcher::SketchObject", "Sketch024")
sketch25.AttachmentSupport = (doc.getObject("XY_Plane025"), [""])
sketch25.MapMode = "FlatFace"
sketch25.addGeometry(Part.Circle(App.Vector(24.5, -14.5, 0), App.Vector(0, 0, 1), 1.5), False)
sketch25.addConstraint([
    Sketcher.Constraint("Diameter", 0, Q("3 mm")),
    Sketcher.Constraint("DistanceX", -1, 1, 0, 3, Q("24.5 mm")),
    Sketcher.Constraint("DistanceY", 0, 3, -1, 1, Q("14.5 mm")),
])
sketch25.setExpression("Constraints[0]", "Params.sketch25_diameter")
pad25 = body26.newObject("PartDesign::Pad", "Pad024")
pad25.Profile = sketch25
pad25.setExpression("Length", "Params.pad25_length")
body27 = doc.addObject("PartDesign::Body", "Body026")

# Sketch on XY plane
sketch26 = body27.newObject("Sketcher::SketchObject", "Sketch025")
sketch26.AttachmentSupport = (doc.getObject("XY_Plane026"), [""])
sketch26.MapMode = "FlatFace"
sketch26.addGeometry(Part.Circle(App.Vector(24.5, -20.5, 0), App.Vector(0, 0, 1), 1.5), False)
sketch26.addConstraint([
    Sketcher.Constraint("Diameter", 0, Q("3 mm")),
    Sketcher.Constraint("DistanceX", -1, 1, 0, 3, Q("24.5 mm")),
    Sketcher.Constraint("DistanceY", 0, 3, -1, 1, Q("20.5 mm")),
])
sketch26.setExpression("Constraints[0]", "Params.sketch26_diameter")
pad26 = body27.newObject("PartDesign::Pad", "Pad025")
pad26.Profile = sketch26
pad26.setExpression("Length", "Params.pad26_length")
doc.recompute()

boolean22 = body27.newObject("PartDesign::Boolean", "Boolean021")
boolean22.Type = "Fuse"
boolean22.addObjects([body25])
doc.recompute()

boolean23 = body27.newObject("PartDesign::Boolean", "Boolean022")
boolean23.Type = "Fuse"
boolean23.addObjects([body26])
body28 = doc.addObject("PartDesign::Body", "Body027")

# Sketch on XY plane
sketch27 = body28.newObject("Sketcher::SketchObject", "Sketch026")
sketch27.AttachmentSupport = (doc.getObject("XY_Plane027"), [""])
sketch27.MapMode = "FlatFace"
sketch27.addGeometry(Part.Circle(App.Vector(18, -8.7, 0), App.Vector(0, 0, 1), 1.5), False)
sketch27.addConstraint([
    Sketcher.Constraint("Diameter", 0, Q("3 mm")),
    Sketcher.Constraint("DistanceX", -1, 1, 0, 3, Q("18 mm")),
    Sketcher.Constraint("DistanceY", 0, 3, -1, 1, Q("8.7 mm")),
])
sketch27.setExpression("Constraints[0]", "Params.sketch27_diameter")
pad27 = body28.newObject("PartDesign::Pad", "Pad026")
pad27.Profile = sketch27
pad27.setExpression("Length", "Params.pad27_length")
body29 = doc.addObject("PartDesign::Body", "Body028")

# Sketch on XY plane
sketch28 = body29.newObject("Sketcher::SketchObject", "Sketch027")
sketch28.AttachmentSupport = (doc.getObject("XY_Plane028"), [""])
sketch28.MapMode = "FlatFace"
add_polygon(sketch28, [(12, -7.2), (12, -10.2), (18, -10.2), (18, -7.2)])  # lines 0-3
sketch28.addConstraint([
    Sketcher.Constraint("Vertical", 0),
    Sketcher.Constraint("Horizontal", 1),
    Sketcher.Constraint("Vertical", 2),
    Sketcher.Constraint("Horizontal", 3),
    Sketcher.Constraint("DistanceX", 1, 1, 1, 2, Q("6 mm")),
    Sketcher.Constraint("DistanceY", 0, 2, 0, 1, Q("3 mm")),
    Sketcher.Constraint("DistanceX", -1, 1, 0, 2, Q("12 mm")),
    Sketcher.Constraint("DistanceY", 0, 2, -1, 1, Q("10.2 mm")),
])
sketch28.setExpression("Constraints[8]", "Params.sketch28_width")
sketch28.setExpression("Constraints[9]", "Params.sketch28_height")
pad28 = body29.newObject("PartDesign::Pad", "Pad027")
pad28.Profile = sketch28
pad28.setExpression("Length", "Params.pad28_length")
body30 = doc.addObject("PartDesign::Body", "Body029")
body30.AllowCompound = True

# Sketch on XY plane
sketch29 = body30.newObject("Sketcher::SketchObject", "Sketch028")
sketch29.AttachmentSupport = (doc.getObject("XY_Plane029"), [""])
sketch29.MapMode = "FlatFace"
sketch29.addGeometry(Part.Circle(App.Vector(12, -8.7, 0), App.Vector(0, 0, 1), 1.5), False)
sketch29.addConstraint([
    Sketcher.Constraint("Diameter", 0, Q("3 mm")),
    Sketcher.Constraint("DistanceX", -1, 1, 0, 3, Q("12 mm")),
    Sketcher.Constraint("DistanceY", 0, 3, -1, 1, Q("8.7 mm")),
])
sketch29.setExpression("Constraints[0]", "Params.sketch29_diameter")
pad29 = body30.newObject("PartDesign::Pad", "Pad028")
pad29.Profile = sketch29
pad29.setExpression("Length", "Params.pad29_length")
doc.recompute()

boolean24 = body30.newObject("PartDesign::Boolean", "Boolean023")
boolean24.Type = "Fuse"
boolean24.addObjects([body28])
doc.recompute()

boolean25 = body30.newObject("PartDesign::Boolean", "Boolean024")
boolean25.Type = "Fuse"
boolean25.addObjects([body29])
doc.recompute()

boolean26 = body30.newObject("PartDesign::Boolean", "Boolean025")
boolean26.Type = "Fuse"
boolean26.addObjects([body24])
doc.recompute()

boolean27 = body30.newObject("PartDesign::Boolean", "Boolean026")
boolean27.Type = "Fuse"
boolean27.addObjects([body27])
body31 = doc.addObject("PartDesign::Body", "Body030")
body31.AllowCompound = True
doc.recompute()

body30.Placement = App.Placement(App.Vector(-19, -35, 0), App.Rotation(App.Vector(0, 0, 1), 180))
boolean28 = body31.newObject("PartDesign::Boolean", "Boolean027")
boolean28.Type = "Fuse"
boolean28.addObjects([body30])
doc.recompute()

boolean29 = body31.newObject("PartDesign::Boolean", "Boolean028")
boolean29.Type = "Fuse"
boolean29.addObjects([body20])
body32 = doc.addObject("PartDesign::Body", "Body031")

# Sketch on XY plane
sketch30 = body32.newObject("Sketcher::SketchObject", "Sketch029")
sketch30.AttachmentSupport = (doc.getObject("XY_Plane031"), [""])
sketch30.MapMode = "FlatFace"
add_polygon(sketch30, [(-49, -2), (-49, -33), (-24, -33), (-24, -2)])  # lines 0-3
sketch30.addConstraint([
    Sketcher.Constraint("Vertical", 0),
    Sketcher.Constraint("Horizontal", 1),
    Sketcher.Constraint("Vertical", 2),
    Sketcher.Constraint("Horizontal", 3),
    Sketcher.Constraint("DistanceX", 1, 1, 1, 2, Q("25 mm")),
    Sketcher.Constraint("DistanceY", 0, 2, 0, 1, Q("31 mm")),
    Sketcher.Constraint("DistanceX", 0, 2, -1, 1, Q("49 mm")),
    Sketcher.Constraint("DistanceY", 0, 2, -1, 1, Q("33 mm")),
])
sketch30.setExpression("Constraints[8]", "Params.sketch30_width")
sketch30.setExpression("Constraints[9]", "Params.sketch30_height")
pad30 = body32.newObject("PartDesign::Pad", "Pad029")
pad30.Profile = sketch30
pad30.setExpression("Length", "Params.pad30_length")
doc.recompute()

boolean30 = body32.newObject("PartDesign::Boolean", "Boolean029")
boolean30.Type = "Cut"
boolean30.addObjects([body31])
body33 = doc.addObject("PartDesign::Body", "Body032")

# Sketch on XY plane
sketch31 = body33.newObject("Sketcher::SketchObject", "Sketch030")
sketch31.AttachmentSupport = (doc.getObject("XY_Plane032"), [""])
sketch31.MapMode = "FlatFace"
sketch31.addGeometry(Part.Circle(App.Vector(-14.7, -30, 0), App.Vector(0, 0, 1), 0.8), False)
sketch31.addConstraint([
    Sketcher.Constraint("Diameter", 0, Q("1.5 mm")),
    Sketcher.Constraint("DistanceY", 0, 3, -1, 1, Q("30 mm")),
    Sketcher.Constraint("DistanceX", 0, 3, -1, 1, Q("14.7 mm")),
])
sketch31.setExpression("Constraints[0]", "Params.sketch31_diameter")
pad31 = body33.newObject("PartDesign::Pad", "Pad030")
pad31.Profile = sketch31
pad31.setExpression("Length", "Params.pad31_length")
body34 = doc.addObject("PartDesign::Body", "Body033")
body34.AllowCompound = True

# Sketch on XY plane
sketch32 = body34.newObject("Sketcher::SketchObject", "Sketch031")
sketch32.AttachmentSupport = (doc.getObject("XY_Plane033"), [""])
sketch32.MapMode = "FlatFace"
sketch32.addGeometry(Part.Circle(App.Vector(-2.7, -30, 0), App.Vector(0, 0, 1), 0.8), False)
sketch32.addConstraint([
    Sketcher.Constraint("Diameter", 0, Q("1.5 mm")),
    Sketcher.Constraint("DistanceY", 0, 3, -1, 1, Q("30 mm")),
    Sketcher.Constraint("DistanceX", 0, 3, -1, 1, Q("2.7 mm")),
])
sketch32.setExpression("Constraints[0]", "Params.sketch32_diameter")
pad32 = body34.newObject("PartDesign::Pad", "Pad031")
pad32.Profile = sketch32
pad32.setExpression("Length", "Params.pad32_length")
doc.recompute()

boolean31 = body34.newObject("PartDesign::Boolean", "Boolean030")
boolean31.Type = "Fuse"
boolean31.addObjects([body33])
body35 = doc.addObject("PartDesign::Body", "Body034")

# Sketch on XY plane
sketch33 = body35.newObject("Sketcher::SketchObject", "Sketch032")
sketch33.AttachmentSupport = (doc.getObject("XY_Plane034"), [""])
sketch33.MapMode = "FlatFace"
sketch33.addGeometry(Part.Circle(App.Vector(-9.6, -15.8, 0), App.Vector(0, 0, 1), 1.3), False)
sketch33.addConstraint([
    Sketcher.Constraint("Diameter", 0, Q("2.6 mm")),
    Sketcher.Constraint("DistanceX", 0, 3, -1, 1, Q("9.6 mm")),
    Sketcher.Constraint("DistanceY", 0, 3, -1, 1, Q("15.8 mm")),
])
sketch33.setExpression("Constraints[0]", "Params.sketch33_diameter")
pad33 = body35.newObject("PartDesign::Pad", "Pad032")
pad33.Profile = sketch33
pad33.setExpression("Length", "Params.pad33_length")
body36 = doc.addObject("PartDesign::Body", "Body035")

# Sketch on XY plane
sketch34 = body36.newObject("Sketcher::SketchObject", "Sketch033")
sketch34.AttachmentSupport = (doc.getObject("XY_Plane035"), [""])
sketch34.MapMode = "FlatFace"
sketch34.addGeometry(Part.Circle(App.Vector(-16.4, -19.4, 0), App.Vector(0, 0, 1), 2.5), False)
sketch34.addConstraint([
    Sketcher.Constraint("Diameter", 0, Q("5 mm")),
    Sketcher.Constraint("DistanceX", 0, 3, -1, 1, Q("16.4 mm")),
    Sketcher.Constraint("DistanceY", 0, 3, -1, 1, Q("19.4 mm")),
])
sketch34.setExpression("Constraints[0]", "Params.sketch34_diameter")
pad34 = body36.newObject("PartDesign::Pad", "Pad033")
pad34.Profile = sketch34
pad34.setExpression("Length", "Params.pad34_length")
body37 = doc.addObject("PartDesign::Body", "Body036")

# Sketch on XY plane
sketch35 = body37.newObject("Sketcher::SketchObject", "Sketch034")
sketch35.AttachmentSupport = (doc.getObject("XY_Plane036"), [""])
sketch35.MapMode = "FlatFace"
sketch35.AttachmentOffset = App.Placement(App.Vector(0, 0, 1), App.Rotation())
add_polygon(sketch35, [(-25, -2), (-25, -33), (2, -33), (2, -2)])  # lines 0-3
sketch35.addConstraint([
    Sketcher.Constraint("Vertical", 0),
    Sketcher.Constraint("Horizontal", 1),
    Sketcher.Constraint("Vertical", 2),
    Sketcher.Constraint("Horizontal", 3),
    Sketcher.Constraint("DistanceX", 1, 1, 1, 2, Q("27 mm")),
    Sketcher.Constraint("DistanceY", 0, 2, 0, 1, Q("31 mm")),
    Sketcher.Constraint("DistanceX", 0, 2, -1, 1, Q("25 mm")),
    Sketcher.Constraint("DistanceY", 0, 2, -1, 1, Q("33 mm")),
])
sketch35.setExpression("Constraints[8]", "Params.sketch35_width")
sketch35.setExpression("Constraints[9]", "Params.sketch35_height")
pad35 = body37.newObject("PartDesign::Pad", "Pad034")
pad35.Profile = sketch35
pad35.setExpression("Length", "Params.pad35_length")
doc.recompute()

boolean32 = body37.newObject("PartDesign::Boolean", "Boolean031")
boolean32.Type = "Cut"
boolean32.addObjects([body36])
doc.recompute()

boolean33 = body37.newObject("PartDesign::Boolean", "Boolean032")
boolean33.Type = "Cut"
boolean33.addObjects([body35])
doc.recompute()

boolean34 = body37.newObject("PartDesign::Boolean", "Boolean033")
boolean34.Type = "Cut"
boolean34.addObjects([body34])
doc.recompute()

boolean35 = body37.newObject("PartDesign::Boolean", "Boolean034")
boolean35.Type = "Fuse"
boolean35.addObjects([body16])
doc.recompute()

boolean36 = body37.newObject("PartDesign::Boolean", "Boolean035")
boolean36.Type = "Fuse"
boolean36.addObjects([body32])
doc.recompute()

chamfer = body37.newObject("PartDesign::Chamfer", "Chamfer")
chamfer.Base = (boolean36, edges_at(boolean36, [(30, -33, 1.5), (30, -2, 1.5)]))
chamfer.setExpression("Size", "Params.chamfer_size")
doc.recompute()

chamfer2 = body37.newObject("PartDesign::Chamfer", "Chamfer001")
chamfer2.Base = (chamfer, edges_at(chamfer, [(-49, -33, 1.5), (-49, -2, 1.5)]))
chamfer2.setExpression("Size", "Params.chamfer2_size")
doc.recompute()

chamfer3 = body37.newObject("PartDesign::Chamfer", "Chamfer002")
chamfer3.Base = (chamfer2, edges_at(chamfer2, [(-24, -17.5, 0), (1, -17.5, 0)]))
chamfer3.setExpression("Size", "Params.chamfer3_size")

doc.recompute()
